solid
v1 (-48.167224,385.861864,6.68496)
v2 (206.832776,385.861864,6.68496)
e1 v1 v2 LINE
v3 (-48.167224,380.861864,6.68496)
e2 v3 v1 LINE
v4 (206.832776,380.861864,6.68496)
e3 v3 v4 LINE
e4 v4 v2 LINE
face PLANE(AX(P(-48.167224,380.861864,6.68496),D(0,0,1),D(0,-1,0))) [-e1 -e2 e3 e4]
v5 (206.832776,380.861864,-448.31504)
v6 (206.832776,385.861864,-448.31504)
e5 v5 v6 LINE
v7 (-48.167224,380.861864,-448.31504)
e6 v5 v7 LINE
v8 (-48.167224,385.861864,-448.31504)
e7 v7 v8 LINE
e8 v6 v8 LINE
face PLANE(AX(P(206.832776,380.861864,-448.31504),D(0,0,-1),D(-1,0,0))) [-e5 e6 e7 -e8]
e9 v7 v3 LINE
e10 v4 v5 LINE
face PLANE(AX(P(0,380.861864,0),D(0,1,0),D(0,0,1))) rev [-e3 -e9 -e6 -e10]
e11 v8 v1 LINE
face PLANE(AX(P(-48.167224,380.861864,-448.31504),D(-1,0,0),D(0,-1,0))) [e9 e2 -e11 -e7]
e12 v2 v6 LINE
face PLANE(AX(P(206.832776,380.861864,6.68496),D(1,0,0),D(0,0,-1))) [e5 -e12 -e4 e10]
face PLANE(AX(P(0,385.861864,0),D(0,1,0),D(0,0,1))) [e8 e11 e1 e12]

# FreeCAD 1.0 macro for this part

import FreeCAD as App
import Part
import Sketcher

V = App.Vector
Q = App.Units.Quantity

doc = App.newDocument("Part")
body = doc.addObject("PartDesign::Body", "Body")

# Sketch on XZ plane
sketch1 = doc.addObject("Sketcher::SketchObject", "Sketch")
body.addObject(sketch1)
sketch1.AttachmentSupport = (doc.XZ_Plane, [""])
sketch1.MapMode = "FlatFace"
sketch1.AttachmentOffset = App.Placement(V(0, 0, -385.861864), App.Rotation())
sketch1.addGeometry(Part.LineSegment(V(-48, -448, 0), V(-48, 7, 0)), False)
sketch1.addGeometry(Part.LineSegment(V(-48, 7, 0), V(207, 7, 0)), False)
sketch1.addGeometry(Part.LineSegment(V(207, 7, 0), V(207, -448, 0)), False)
sketch1.addGeometry(Part.LineSegment(V(207, -448, 0), V(-48, -448, 0)), False)
sketch1.addConstraint(Sketcher.Constraint("Coincident", 0, 2, 1, 1))
sketch1.addConstraint(Sketcher.Constraint("Coincident", 1, 2, 2, 1))
sketch1.addConstraint(Sketcher.Constraint("Coincident", 2, 2, 3, 1))
sketch1.addConstraint(Sketcher.Constraint("Coincident", 3, 2, 0, 1))
sketch1.addConstraint(Sketcher.Constraint("Vertical", 0))
sketch1.addConstraint(Sketcher.Constraint("Horizontal", 1))
sketch1.addConstraint(Sketcher.Constraint("Vertical", 2))
sketch1.addConstraint(Sketcher.Constraint("Horizontal", 3))
sketch1.addConstraint(Sketcher.Constraint("DistanceX", 1, 1, 1, 2, Q("255 mm")))
sketch1.addConstraint(Sketcher.Constraint("DistanceY", 0, 1, 0, 2, Q("455 mm")))
sketch1.addConstraint(Sketcher.Constraint("DistanceY", -1, 1, 0, 2, Q("6.68496 mm")))
sketch1.addConstraint(Sketcher.Constraint("DistanceX", 0, 2, -1, 1, Q("48.167224 mm")))
pad1 = doc.addObject("PartDesign::Pad", "Pad")
body.addObject(pad1)
pad1.Profile = sketch1
pad1.Length = 5

doc.recompute()
